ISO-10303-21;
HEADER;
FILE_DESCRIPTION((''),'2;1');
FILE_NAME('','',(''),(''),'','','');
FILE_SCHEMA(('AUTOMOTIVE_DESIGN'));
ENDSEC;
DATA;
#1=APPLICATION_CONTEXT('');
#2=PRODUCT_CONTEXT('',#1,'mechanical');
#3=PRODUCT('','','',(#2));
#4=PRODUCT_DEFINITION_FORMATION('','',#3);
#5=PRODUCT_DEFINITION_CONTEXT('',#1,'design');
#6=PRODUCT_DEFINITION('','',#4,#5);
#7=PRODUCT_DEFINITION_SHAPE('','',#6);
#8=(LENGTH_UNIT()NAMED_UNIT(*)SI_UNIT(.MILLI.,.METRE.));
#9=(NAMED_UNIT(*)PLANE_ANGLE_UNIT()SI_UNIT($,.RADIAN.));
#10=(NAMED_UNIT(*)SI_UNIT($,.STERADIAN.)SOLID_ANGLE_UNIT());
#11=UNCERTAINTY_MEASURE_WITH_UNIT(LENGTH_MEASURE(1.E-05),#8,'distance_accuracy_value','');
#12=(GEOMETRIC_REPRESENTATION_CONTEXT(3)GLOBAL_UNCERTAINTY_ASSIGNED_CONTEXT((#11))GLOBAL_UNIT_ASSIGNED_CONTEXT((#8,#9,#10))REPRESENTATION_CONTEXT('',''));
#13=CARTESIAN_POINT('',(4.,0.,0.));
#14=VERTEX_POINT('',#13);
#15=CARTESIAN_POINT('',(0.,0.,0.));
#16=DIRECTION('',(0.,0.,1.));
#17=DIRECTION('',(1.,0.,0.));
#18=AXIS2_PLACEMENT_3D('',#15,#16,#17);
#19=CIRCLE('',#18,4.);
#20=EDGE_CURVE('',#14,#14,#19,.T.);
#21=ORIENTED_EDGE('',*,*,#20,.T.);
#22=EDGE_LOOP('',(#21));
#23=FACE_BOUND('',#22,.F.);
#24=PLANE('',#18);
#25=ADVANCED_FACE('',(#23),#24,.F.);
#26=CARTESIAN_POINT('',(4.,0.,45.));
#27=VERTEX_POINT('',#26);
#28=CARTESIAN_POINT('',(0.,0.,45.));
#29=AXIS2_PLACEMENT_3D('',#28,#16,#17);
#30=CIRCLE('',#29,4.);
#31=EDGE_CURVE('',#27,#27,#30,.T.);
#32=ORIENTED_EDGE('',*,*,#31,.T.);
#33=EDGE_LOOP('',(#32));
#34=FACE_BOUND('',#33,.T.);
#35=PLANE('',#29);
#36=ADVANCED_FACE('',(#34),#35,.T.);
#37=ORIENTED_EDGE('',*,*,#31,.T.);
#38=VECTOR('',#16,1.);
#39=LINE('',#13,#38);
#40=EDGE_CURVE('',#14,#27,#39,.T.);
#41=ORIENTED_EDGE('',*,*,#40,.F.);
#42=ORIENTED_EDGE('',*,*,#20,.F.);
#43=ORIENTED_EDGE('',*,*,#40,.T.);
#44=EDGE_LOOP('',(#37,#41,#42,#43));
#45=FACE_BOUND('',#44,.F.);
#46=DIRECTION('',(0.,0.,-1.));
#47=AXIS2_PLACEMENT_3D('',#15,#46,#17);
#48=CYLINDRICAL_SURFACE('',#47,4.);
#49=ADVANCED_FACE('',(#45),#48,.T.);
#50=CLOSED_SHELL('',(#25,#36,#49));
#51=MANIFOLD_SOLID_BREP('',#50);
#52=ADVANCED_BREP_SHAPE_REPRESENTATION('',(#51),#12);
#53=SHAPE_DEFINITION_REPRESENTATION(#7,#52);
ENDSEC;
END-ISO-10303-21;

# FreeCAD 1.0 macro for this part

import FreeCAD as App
import Part
import Sketcher

V = App.Vector
Q = App.Units.Quantity

doc = App.newDocument("Part")
body = doc.addObject("PartDesign::Body", "Body")

# Sketch on XY plane
sketch1 = doc.addObject("Sketcher::SketchObject", "Sketch")
body.addObject(sketch1)
sketch1.AttachmentSupport = (doc.XY_Plane, [""])
sketch1.MapMode = "FlatFace"
sketch1.addGeometry(Part.Circle(V(0, 0, 0), V(0, 0, 1), 4), False)
sketch1.addConstraint([
    Sketcher.Constraint("Coincident", 0, 3, -1, 1),
    Sketcher.Constraint("Diameter", 0, Q("8 mm")),
])
pad1 = doc.addObject("PartDesign::Pad", "Pad")
body.addObject(pad1)
pad1.Profile = sketch1
pad1.Length = 45

doc.recompute()
